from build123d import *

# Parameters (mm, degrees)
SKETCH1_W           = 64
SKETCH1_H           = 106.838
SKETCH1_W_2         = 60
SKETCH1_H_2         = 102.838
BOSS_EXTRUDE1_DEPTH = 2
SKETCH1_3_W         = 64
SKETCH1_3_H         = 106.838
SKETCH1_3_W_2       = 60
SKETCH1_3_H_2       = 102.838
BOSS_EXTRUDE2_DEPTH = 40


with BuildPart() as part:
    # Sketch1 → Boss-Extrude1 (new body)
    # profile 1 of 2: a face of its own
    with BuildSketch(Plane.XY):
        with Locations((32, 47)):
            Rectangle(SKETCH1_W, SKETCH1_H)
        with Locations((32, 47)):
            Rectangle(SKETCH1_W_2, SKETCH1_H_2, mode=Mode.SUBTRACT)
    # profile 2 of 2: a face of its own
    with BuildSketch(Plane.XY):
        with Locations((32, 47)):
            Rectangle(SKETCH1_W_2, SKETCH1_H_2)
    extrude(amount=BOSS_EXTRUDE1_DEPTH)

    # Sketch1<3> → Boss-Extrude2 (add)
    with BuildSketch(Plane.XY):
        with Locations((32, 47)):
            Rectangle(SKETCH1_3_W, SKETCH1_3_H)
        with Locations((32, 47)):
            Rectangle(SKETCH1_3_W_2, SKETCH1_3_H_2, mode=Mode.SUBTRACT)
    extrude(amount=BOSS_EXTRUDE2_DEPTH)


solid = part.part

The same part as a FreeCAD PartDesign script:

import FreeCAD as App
import Part
import Sketcher
from FreeCAD import Vector


def add_polygon(sketch, points):
    """Adds a closed chain of lines whose ends are joined by coincident constraints."""
    first, n = sketch.GeometryCount, len(points)
    for a, b in zip(points, points[1:] + points[:1]):
        sketch.addGeometry(Part.LineSegment(App.Vector(*a, 0), App.Vector(*b, 0)), False)
    for i in range(n):
        sketch.addConstraint(Sketcher.Constraint("Coincident", first + i, 2, first + (i + 1) % n, 1))

doc = App.newDocument("Part")
body = doc.addObject("PartDesign::Body", "Body")

# Sketch on XY plane
sketch1 = body.newObject("Sketcher::SketchObject", "Sketch")
sketch1.AttachmentSupport = (doc.getObject("XY_Plane"), [""])
sketch1.MapMode = "FlatFace"
add_polygon(sketch1, [(0, 100), (0, -6), (64, -6), (64, 100)])  # lines 0-3
sketch1.addConstraint([
    Sketcher.Constraint("Vertical", 0),
    Sketcher.Constraint("Horizontal", 1),
    Sketcher.Constraint("Vertical", 2),
    Sketcher.Constraint("Horizontal", 3),
    Sketcher.Constraint("PointOnObject", 0, 2, -2),
    Sketcher.Constraint("DistanceX", 1, 1, 1, 2, 64.0),
    Sketcher.Constraint("DistanceY", 0, 2, 0, 1, 106.838),
    Sketcher.Constraint("DistanceY", 0, 2, -1, 1, 6.419),
])
pad1 = body.newObject("PartDesign::Pad", "Pad")
pad1.Profile = sketch1
pad1.Length = 2

# Sketch on XY plane
sketch2 = body.newObject("Sketcher::SketchObject", "Sketch001")
sketch2.AttachmentSupport = (doc.getObject("XY_Plane"), [""])
sketch2.MapMode = "FlatFace"
add_polygon(sketch2, [(0, 100), (0, -6), (64, -6), (64, 100)])  # lines 0-3
add_polygon(sketch2, [(62, -4), (2, -4), (2, 98), (62, 98)])  # lines 4-7
sketch2.addConstraint([
    Sketcher.Constraint("Vertical", 0),
    Sketcher.Constraint("Horizontal", 1),
    Sketcher.Constraint("Vertical", 2),
    Sketcher.Constraint("Horizontal", 3),
    Sketcher.Constraint("Horizontal", 4),
    Sketcher.Constraint("Vertical", 5),
    Sketcher.Constraint("Horizontal", 6),
    Sketcher.Constraint("Vertical", 7),
    Sketcher.Constraint("PointOnObject", 0, 2, -2),
    Sketcher.Constraint("DistanceX", 1, 1, 1, 2, 64.0),
    Sketcher.Constraint("DistanceX", 4, 2, 4, 1, 60.0),
    Sketcher.Constraint("DistanceX", -1, 1, 4, 2, 2.0),
    Sketcher.Constraint("DistanceY", 0, 2, 4, 2, 2.0),
    Sketcher.Constraint("DistanceY", 5, 2, 3, 2, 2.0),
    Sketcher.Constraint("DistanceY", 0, 2, 0, 1, 106.838),
    Sketcher.Constraint("DistanceY", 0, 2, -1, 1, 6.419),
])
pad2 = body.newObject("PartDesign::Pad", "Pad001")
pad2.Profile = sketch2
pad2.Length = 40

doc.recompute()
